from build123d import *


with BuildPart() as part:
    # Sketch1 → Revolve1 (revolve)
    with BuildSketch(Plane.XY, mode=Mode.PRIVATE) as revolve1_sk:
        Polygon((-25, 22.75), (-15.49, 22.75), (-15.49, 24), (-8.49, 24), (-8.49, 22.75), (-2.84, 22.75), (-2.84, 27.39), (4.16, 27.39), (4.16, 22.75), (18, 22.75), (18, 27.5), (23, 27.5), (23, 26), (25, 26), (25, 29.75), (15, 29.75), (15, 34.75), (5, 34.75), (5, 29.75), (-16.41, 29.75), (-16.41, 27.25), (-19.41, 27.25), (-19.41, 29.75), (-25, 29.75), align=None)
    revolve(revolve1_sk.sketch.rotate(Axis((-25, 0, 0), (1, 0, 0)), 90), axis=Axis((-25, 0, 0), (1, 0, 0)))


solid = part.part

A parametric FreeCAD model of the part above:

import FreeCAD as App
import Part
import Sketcher
Q = App.Units.Quantity

doc = App.newDocument("Part")
body = doc.addObject("PartDesign::Body", "Body")

sketch1 = doc.addObject("Sketcher::SketchObject", "Sketch")
body.addObject(sketch1)
sketch1.AttachmentSupport = (doc.XY_Plane, [""])
sketch1.MapMode = "FlatFace"
sketch1.addGeometry([
    Part.LineSegment(App.Vector(-25, 22.75, 0), App.Vector(-15.49, 22.75, 0)),
    Part.LineSegment(App.Vector(-15.49, 22.75, 0), App.Vector(-15.49, 24, 0)),
    Part.LineSegment(App.Vector(-15.49, 24, 0), App.Vector(-8.49, 24, 0)),
    Part.LineSegment(App.Vector(-8.49, 24, 0), App.Vector(-8.49, 22.75, 0)),
    Part.LineSegment(App.Vector(-8.49, 22.75, 0), App.Vector(-2.84, 22.75, 0)),
    Part.LineSegment(App.Vector(-2.84, 22.75, 0), App.Vector(-2.84, 27.39, 0)),
    Part.LineSegment(App.Vector(-2.84, 27.39, 0), App.Vector(4.16, 27.39, 0)),
    Part.LineSegment(App.Vector(4.16, 27.39, 0), App.Vector(4.16, 22.75, 0)),
    Part.LineSegment(App.Vector(4.16, 22.75, 0), App.Vector(18, 22.75, 0)),
    Part.LineSegment(App.Vector(18, 22.75, 0), App.Vector(18, 27.5, 0)),
    Part.LineSegment(App.Vector(18, 27.5, 0), App.Vector(23, 27.5, 0)),
    Part.LineSegment(App.Vector(23, 27.5, 0), App.Vector(23, 26, 0)),
    Part.LineSegment(App.Vector(23, 26, 0), App.Vector(25, 26, 0)),
    Part.LineSegment(App.Vector(25, 26, 0), App.Vector(25, 29.75, 0)),
    Part.LineSegment(App.Vector(25, 29.75, 0), App.Vector(15, 29.75, 0)),
    Part.LineSegment(App.Vector(15, 29.75, 0), App.Vector(15, 34.75, 0)),
    Part.LineSegment(App.Vector(15, 34.75, 0), App.Vector(5, 34.75, 0)),
    Part.LineSegment(App.Vector(5, 34.75, 0), App.Vector(5, 29.75, 0)),
    Part.LineSegment(App.Vector(5, 29.75, 0), App.Vector(-16.41, 29.75, 0)),
    Part.LineSegment(App.Vector(-16.41, 29.75, 0), App.Vector(-16.41, 27.25, 0)),
    Part.LineSegment(App.Vector(-16.41, 27.25, 0), App.Vector(-19.41, 27.25, 0)),
    Part.LineSegment(App.Vector(-19.41, 27.25, 0), App.Vector(-19.41, 29.75, 0)),
    Part.LineSegment(App.Vector(-19.41, 29.75, 0), App.Vector(-25, 29.75, 0)),
    Part.LineSegment(App.Vector(-25, 29.75, 0), App.Vector(-25, 22.75, 0)),
], False)
sketch1.addConstraint([
    Sketcher.Constraint("Coincident", 0, 2, 1, 1),
    Sketcher.Constraint("Coincident", 1, 2, 2, 1),
    Sketcher.Constraint("Coincident", 2, 2, 3, 1),
    Sketcher.Constraint("Coincident", 3, 2, 4, 1),
    Sketcher.Constraint("Coincident", 4, 2, 5, 1),
    Sketcher.Constraint("Coincident", 5, 2, 6, 1),
    Sketcher.Constraint("Coincident", 6, 2, 7, 1),
    Sketcher.Constraint("Coincident", 7, 2, 8, 1),
    Sketcher.Constraint("Coincident", 8, 2, 9, 1),
    Sketcher.Constraint("Coincident", 9, 2, 10, 1),
    Sketcher.Constraint("Coincident", 10, 2, 11, 1),
    Sketcher.Constraint("Coincident", 11, 2, 12, 1),
    Sketcher.Constraint("Coincident", 12, 2, 13, 1),
    Sketcher.Constraint("Coincident", 13, 2, 14, 1),
    Sketcher.Constraint("Coincident", 14, 2, 15, 1),
    Sketcher.Constraint("Coincident", 15, 2, 16, 1),
    Sketcher.Constraint("Coincident", 16, 2, 17, 1),
    Sketcher.Constraint("Coincident", 17, 2, 18, 1),
    Sketcher.Constraint("Coincident", 18, 2, 19, 1),
    Sketcher.Constraint("Coincident", 19, 2, 20, 1),
    Sketcher.Constraint("Coincident", 20, 2, 21, 1),
    Sketcher.Constraint("Coincident", 21, 2, 22, 1),
    Sketcher.Constraint("Coincident", 22, 2, 23, 1),
    Sketcher.Constraint("Coincident", 23, 2, 0, 1),
    Sketcher.Constraint("Horizontal", 0),
    Sketcher.Constraint("Vertical", 1),
    Sketcher.Constraint("Horizontal", 2),
    Sketcher.Constraint("Vertical", 3),
    Sketcher.Constraint("Horizontal", 4),
    Sketcher.Constraint("Vertical", 5),
    Sketcher.Constraint("Horizontal", 6),
    Sketcher.Constraint("Vertical", 7),
    Sketcher.Constraint("Horizontal", 8),
    Sketcher.Constraint("Vertical", 9),
    Sketcher.Constraint("Horizontal", 10),
    Sketcher.Constraint("Vertical", 11),
    Sketcher.Constraint("Horizontal", 12),
    Sketcher.Constraint("Vertical", 13),
    Sketcher.Constraint("Horizontal", 14),
    Sketcher.Constraint("Vertical", 15),
    Sketcher.Constraint("Horizontal", 16),
    Sketcher.Constraint("Vertical", 17),
    Sketcher.Constraint("Horizontal", 18),
    Sketcher.Constraint("Vertical", 19),
    Sketcher.Constraint("Horizontal", 20),
    Sketcher.Constraint("Vertical", 21),
    Sketcher.Constraint("Horizontal", 22),
    Sketcher.Constraint("Vertical", 23),
    Sketcher.Constraint("Symmetric", 13, 2, 22, 2, -2),
    Sketcher.Constraint("Horizontal", 0, 2, 3, 2),
    Sketcher.Constraint("Horizontal", 4, 2, 7, 2),
    Sketcher.Constraint("Horizontal", 14, 2, 17, 2),
    Sketcher.Constraint("Equal", 2, 6),
    Sketcher.Constraint("Equal", 14, 16),
    Sketcher.Constraint("Equal", 10, 15),
    Sketcher.Constraint("Equal", 6, 23),
    Sketcher.Constraint("DistanceX", 2, 1, 2, 2, Q("7 mm")),
    Sketcher.Constraint("DistanceX", 10, 1, 10, 2, Q("5 mm")),
    Sketcher.Constraint("DistanceX", 12, 1, 12, 2, Q("2 mm")),
    Sketcher.Constraint("DistanceX", 14, 2, 14, 1, Q("10 mm")),
    Sketcher.Constraint("DistanceX", 20, 2, 20, 1, Q("3 mm")),
    Sketcher.Constraint("DistanceY", 11, 2, 11, 1, Q("1.5 mm")),
    Sketcher.Constraint("DistanceY", 19, 2, 19, 1, Q("2.5 mm")),
    Sketcher.Constraint("DistanceY", -1, 1, 1, 2, Q("24 mm")),
    Sketcher.Constraint("DistanceX", -1, 1, 8, 2, Q("18 mm")),
    Sketcher.Constraint("DistanceY", -1, 1, 11, 2, Q("26 mm")),
    Sketcher.Constraint("DistanceX", 0, 1, 0, 2, Q("9.51 mm")),
    Sketcher.Constraint("DistanceX", 4, 1, 4, 2, Q("5.65 mm")),
    Sketcher.Constraint("DistanceX", 18, 2, 18, 1, Q("21.41 mm")),
    Sketcher.Constraint("DistanceY", 1, 1, 1, 2, Q("1.25 mm")),
    Sketcher.Constraint("DistanceY", 5, 1, 5, 2, Q("4.64 mm")),
])
revolution = doc.addObject("PartDesign::Revolution", "Revolution")
body.addObject(revolution)
revolution.Profile = sketch1
revolution.ReferenceAxis = (sketch1, ["H_Axis"])
revolution.Angle = 360

doc.recompute()
